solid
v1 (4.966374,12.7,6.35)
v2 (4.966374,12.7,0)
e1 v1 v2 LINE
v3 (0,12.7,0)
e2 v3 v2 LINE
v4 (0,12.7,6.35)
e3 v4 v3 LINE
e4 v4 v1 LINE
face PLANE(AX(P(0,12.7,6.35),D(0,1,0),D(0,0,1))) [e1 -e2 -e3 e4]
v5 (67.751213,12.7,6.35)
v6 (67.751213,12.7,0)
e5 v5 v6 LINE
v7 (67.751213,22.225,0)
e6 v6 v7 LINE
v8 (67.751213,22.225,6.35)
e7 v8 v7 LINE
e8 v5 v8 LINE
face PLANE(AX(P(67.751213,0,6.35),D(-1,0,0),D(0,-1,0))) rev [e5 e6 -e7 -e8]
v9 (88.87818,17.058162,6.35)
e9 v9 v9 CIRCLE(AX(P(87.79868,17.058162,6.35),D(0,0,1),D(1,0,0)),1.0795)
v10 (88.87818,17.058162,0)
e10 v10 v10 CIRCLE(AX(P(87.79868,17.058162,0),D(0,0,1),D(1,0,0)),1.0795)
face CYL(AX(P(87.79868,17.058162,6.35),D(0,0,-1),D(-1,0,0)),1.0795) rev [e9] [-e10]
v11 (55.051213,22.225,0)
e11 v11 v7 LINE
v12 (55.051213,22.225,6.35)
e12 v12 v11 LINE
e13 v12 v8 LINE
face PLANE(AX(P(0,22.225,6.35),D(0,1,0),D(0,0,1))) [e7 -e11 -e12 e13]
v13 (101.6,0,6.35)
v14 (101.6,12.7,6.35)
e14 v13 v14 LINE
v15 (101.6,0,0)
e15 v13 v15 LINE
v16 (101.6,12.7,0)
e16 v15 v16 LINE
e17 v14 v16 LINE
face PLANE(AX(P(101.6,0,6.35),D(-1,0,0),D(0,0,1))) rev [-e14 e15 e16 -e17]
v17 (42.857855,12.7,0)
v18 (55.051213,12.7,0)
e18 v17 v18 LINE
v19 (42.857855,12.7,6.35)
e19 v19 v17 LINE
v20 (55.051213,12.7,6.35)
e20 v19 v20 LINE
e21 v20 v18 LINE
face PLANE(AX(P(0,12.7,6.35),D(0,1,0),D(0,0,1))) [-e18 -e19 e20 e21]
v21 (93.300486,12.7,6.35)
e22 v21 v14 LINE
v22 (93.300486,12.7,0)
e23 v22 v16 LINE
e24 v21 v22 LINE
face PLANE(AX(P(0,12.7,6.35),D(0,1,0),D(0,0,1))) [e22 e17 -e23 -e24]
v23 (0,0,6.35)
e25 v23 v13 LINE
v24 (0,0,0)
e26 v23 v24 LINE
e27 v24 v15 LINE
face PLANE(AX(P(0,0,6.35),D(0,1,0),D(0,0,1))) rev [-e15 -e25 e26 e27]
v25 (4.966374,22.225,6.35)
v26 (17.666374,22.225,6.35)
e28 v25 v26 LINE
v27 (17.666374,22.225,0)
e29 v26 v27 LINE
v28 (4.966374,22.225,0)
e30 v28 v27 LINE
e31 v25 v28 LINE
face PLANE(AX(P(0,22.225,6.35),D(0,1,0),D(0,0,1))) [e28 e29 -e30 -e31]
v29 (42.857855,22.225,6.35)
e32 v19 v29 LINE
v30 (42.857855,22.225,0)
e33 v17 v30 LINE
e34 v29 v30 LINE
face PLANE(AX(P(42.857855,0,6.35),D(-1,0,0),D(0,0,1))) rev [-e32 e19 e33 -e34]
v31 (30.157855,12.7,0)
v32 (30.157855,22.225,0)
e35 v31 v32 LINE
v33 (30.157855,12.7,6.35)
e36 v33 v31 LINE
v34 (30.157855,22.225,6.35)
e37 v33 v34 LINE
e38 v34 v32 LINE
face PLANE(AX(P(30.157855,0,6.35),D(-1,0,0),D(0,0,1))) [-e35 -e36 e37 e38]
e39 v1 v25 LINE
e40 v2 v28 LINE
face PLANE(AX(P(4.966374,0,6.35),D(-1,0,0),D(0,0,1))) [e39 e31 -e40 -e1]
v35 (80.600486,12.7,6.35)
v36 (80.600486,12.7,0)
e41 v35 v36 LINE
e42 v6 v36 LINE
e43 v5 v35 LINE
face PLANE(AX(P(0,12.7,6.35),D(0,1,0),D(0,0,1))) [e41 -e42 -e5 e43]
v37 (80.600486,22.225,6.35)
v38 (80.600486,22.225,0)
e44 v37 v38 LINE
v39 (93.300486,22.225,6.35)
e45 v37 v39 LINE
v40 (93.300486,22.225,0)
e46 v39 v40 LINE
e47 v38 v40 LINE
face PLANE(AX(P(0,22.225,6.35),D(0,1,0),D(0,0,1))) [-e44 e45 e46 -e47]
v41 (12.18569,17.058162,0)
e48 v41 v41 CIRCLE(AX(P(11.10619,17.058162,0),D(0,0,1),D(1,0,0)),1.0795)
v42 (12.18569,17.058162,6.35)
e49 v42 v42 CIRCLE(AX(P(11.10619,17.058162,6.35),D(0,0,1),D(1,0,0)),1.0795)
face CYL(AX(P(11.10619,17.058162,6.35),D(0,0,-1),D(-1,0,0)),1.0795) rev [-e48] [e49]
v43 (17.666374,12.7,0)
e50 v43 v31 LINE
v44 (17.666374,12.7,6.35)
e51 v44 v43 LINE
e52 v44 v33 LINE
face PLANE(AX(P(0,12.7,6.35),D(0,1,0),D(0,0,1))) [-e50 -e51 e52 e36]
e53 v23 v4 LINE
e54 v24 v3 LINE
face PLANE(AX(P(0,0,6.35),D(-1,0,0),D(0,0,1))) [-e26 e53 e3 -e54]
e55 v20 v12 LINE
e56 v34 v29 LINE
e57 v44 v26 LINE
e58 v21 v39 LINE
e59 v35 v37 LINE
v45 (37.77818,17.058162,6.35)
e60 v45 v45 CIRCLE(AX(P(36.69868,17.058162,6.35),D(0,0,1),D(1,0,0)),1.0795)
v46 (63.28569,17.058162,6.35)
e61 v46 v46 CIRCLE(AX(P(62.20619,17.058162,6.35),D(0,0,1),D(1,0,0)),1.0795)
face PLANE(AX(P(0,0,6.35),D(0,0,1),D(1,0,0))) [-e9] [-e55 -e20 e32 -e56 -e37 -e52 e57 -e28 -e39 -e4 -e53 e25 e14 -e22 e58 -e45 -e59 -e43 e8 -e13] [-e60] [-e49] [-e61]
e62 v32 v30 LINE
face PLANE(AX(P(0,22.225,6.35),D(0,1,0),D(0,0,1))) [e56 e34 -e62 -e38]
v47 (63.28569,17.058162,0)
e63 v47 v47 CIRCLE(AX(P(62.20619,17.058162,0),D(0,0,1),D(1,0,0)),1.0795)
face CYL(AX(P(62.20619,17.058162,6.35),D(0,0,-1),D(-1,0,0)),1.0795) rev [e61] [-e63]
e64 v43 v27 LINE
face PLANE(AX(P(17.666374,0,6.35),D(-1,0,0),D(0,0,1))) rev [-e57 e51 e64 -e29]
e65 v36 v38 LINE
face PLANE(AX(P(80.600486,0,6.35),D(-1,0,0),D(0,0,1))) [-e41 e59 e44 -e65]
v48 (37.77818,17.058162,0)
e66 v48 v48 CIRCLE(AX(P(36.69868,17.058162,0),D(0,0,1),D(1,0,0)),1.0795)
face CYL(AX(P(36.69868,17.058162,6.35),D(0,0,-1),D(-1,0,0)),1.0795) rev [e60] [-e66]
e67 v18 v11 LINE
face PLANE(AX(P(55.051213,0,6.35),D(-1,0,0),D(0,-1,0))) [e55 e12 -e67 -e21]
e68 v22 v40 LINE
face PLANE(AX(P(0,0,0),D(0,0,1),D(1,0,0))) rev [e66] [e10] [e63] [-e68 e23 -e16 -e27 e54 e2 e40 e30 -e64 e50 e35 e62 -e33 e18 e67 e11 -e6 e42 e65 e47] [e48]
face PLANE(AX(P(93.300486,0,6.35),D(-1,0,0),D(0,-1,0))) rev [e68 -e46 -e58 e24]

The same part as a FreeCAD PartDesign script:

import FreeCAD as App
import Part
import Sketcher

V = App.Vector
Q = App.Units.Quantity


def add_polygon(sketch, points):
    """Adds a closed chain of lines whose ends are joined by coincident constraints."""
    first, n = sketch.GeometryCount, len(points)
    for a, b in zip(points, points[1:] + points[:1]):
        sketch.addGeometry(Part.LineSegment(App.Vector(*a, 0), App.Vector(*b, 0)), False)
    for i in range(n):
        sketch.addConstraint(Sketcher.Constraint("Coincident", first + i, 2, first + (i + 1) % n, 1))

doc = App.newDocument("Part")
body = doc.addObject("PartDesign::Body", "Body")

# Sketch on XY plane
sketch1 = body.newObject("Sketcher::SketchObject", "Sketch")
sketch1.AttachmentSupport = (doc.getObject("XY_Plane"), [""])
sketch1.MapMode = "FlatFace"
add_polygon(sketch1, [(5, 22.2), (5, 12.7), (0, 12.7), (0, 0), (101.6, 0), (101.6, 12.7), (93.3, 12.7), (93.3, 22.2), (80.6, 22.2), (80.6, 12.7), (67.8, 12.7), (67.8, 22.2), (55.1, 22.2), (55.1, 12.7), (42.9, 12.7), (42.9, 22.2), (30.2, 22.2), (30.2, 12.7), (17.7, 12.7), (17.7, 22.2)])  # lines 0-19
sketch1.addConstraint([
    Sketcher.Constraint("Vertical", 0),
    Sketcher.Constraint("Horizontal", 1),
    Sketcher.Constraint("Vertical", 2),
    Sketcher.Constraint("Horizontal", 3),
    Sketcher.Constraint("Vertical", 4),
    Sketcher.Constraint("Horizontal", 5),
    Sketcher.Constraint("Vertical", 6),
    Sketcher.Constraint("Horizontal", 7),
    Sketcher.Constraint("Vertical", 8),
    Sketcher.Constraint("Horizontal", 9),
    Sketcher.Constraint("Vertical", 10),
    Sketcher.Constraint("Horizontal", 11),
    Sketcher.Constraint("Vertical", 12),
    Sketcher.Constraint("Horizontal", 13),
    Sketcher.Constraint("Vertical", 14),
    Sketcher.Constraint("Horizontal", 15),
    Sketcher.Constraint("Vertical", 16),
    Sketcher.Constraint("Horizontal", 17),
    Sketcher.Constraint("Vertical", 18),
    Sketcher.Constraint("Horizontal", 19),
    Sketcher.Constraint("Coincident", 2, 2, -1, 1),
    Sketcher.Constraint("Horizontal", 1, 2, 4, 2),
    Sketcher.Constraint("Horizontal", 5, 2, 8, 2),
    Sketcher.Constraint("Horizontal", 7, 2, 10, 2),
    Sketcher.Constraint("Horizontal", 9, 2, 12, 2),
    Sketcher.Constraint("Horizontal", 11, 2, 14, 2),
    Sketcher.Constraint("Horizontal", 13, 2, 16, 2),
    Sketcher.Constraint("Horizontal", 15, 2, 18, 2),
    Sketcher.Constraint("Equal", 7, 11),
    Sketcher.Constraint("Equal", 11, 15),
    Sketcher.Constraint("Equal", 15, 19),
    Sketcher.Constraint("Equal", 19, 2),
    Sketcher.Constraint("DistanceX", 3, 1, 3, 2, Q("4 in")),
    Sketcher.Constraint("DistanceX", 7, 2, 7, 1, Q("0.5 in")),
    Sketcher.Constraint("DistanceY", 0, 2, 0, 1, Q("0.375 in")),
    Sketcher.Constraint("DistanceX", 17, 2, 17, 1, 12.491482),
    Sketcher.Constraint("DistanceX", 1, 2, 1, 1, 4.966374),
    Sketcher.Constraint("DistanceX", 5, 2, 5, 1, 8.299514),
    Sketcher.Constraint("DistanceX", 9, 2, 9, 1, 12.849273),
])
pad1 = body.newObject("PartDesign::Pad", "Pad")
pad1.Profile = sketch1
pad1.Length = Q("0.25 in")

# Sketch on XY plane
sketch2 = body.newObject("Sketcher::SketchObject", "Sketch001")
sketch2.AttachmentSupport = (doc.getObject("XY_Plane"), [""])
sketch2.MapMode = "FlatFace"
sketch2.addGeometry([
    Part.Circle(V(87.8, 17.1, 0), V(0, 0, 1), 1.1),  # 0
    Part.Circle(V(62.2, 17.1, 0), V(0, 0, 1), 1.1),  # 1
    Part.Circle(V(36.7, 17.1, 0), V(0, 0, 1), 1.1),  # 2
    Part.Circle(V(11.1, 17.1, 0), V(0, 0, 1), 1.1),  # 3
    Part.Circle(V(31.3, 115.4, 0), V(0, 0, 1), 1.1),  # 4
    Part.Circle(V(56.9, 115.4, 0), V(0, 0, 1), 1.1),  # 5
    Part.Circle(V(82.4, 115.4, 0), V(0, 0, 1), 1.1),  # 6
    Part.Circle(V(108, 115.4, 0), V(0, 0, 1), 1.1),  # 7
], False)
sketch2.addConstraint([
    Sketcher.Constraint("Equal", 0, 1),
    Sketcher.Constraint("Equal", 1, 2),
    Sketcher.Constraint("Equal", 2, 3),
    Sketcher.Constraint("Equal", 3, 4),
    Sketcher.Constraint("Equal", 4, 5),
    Sketcher.Constraint("Equal", 5, 6),
    Sketcher.Constraint("Equal", 6, 7),
    Sketcher.Constraint("Horizontal", 0, 3, 1, 3),
    Sketcher.Constraint("Horizontal", 1, 3, 2, 3),
    Sketcher.Constraint("Horizontal", 2, 3, 3, 3),
    Sketcher.Constraint("Horizontal", 4, 3, 5, 3),
    Sketcher.Constraint("Horizontal", 5, 3, 6, 3),
    Sketcher.Constraint("Horizontal", 6, 3, 7, 3),
    Sketcher.Constraint("Diameter", 0, Q("0.085 in")),
    Sketcher.Constraint("DistanceX", -1, 1, 7, 3, Q("4.2527001 in")),
    Sketcher.Constraint("DistanceX", 2, 3, 0, 3, 51.1),
    Sketcher.Constraint("DistanceX", 3, 3, 1, 3, 51.1),
    Sketcher.Constraint("DistanceX", 4, 3, 6, 3, 51.1),
    Sketcher.Constraint("DistanceX", 5, 3, 7, 3, 51.1),
    Sketcher.Constraint("DistanceX", -1, 1, 0, 3, 87.79868),
    Sketcher.Constraint("DistanceY", -1, 1, 0, 3, 17.058162),
    Sketcher.Constraint("DistanceX", -1, 1, 1, 3, 62.20619),
    Sketcher.Constraint("DistanceY", 2, 3, 4, 3, 98.332362),
    Sketcher.Constraint("DistanceX", 4, 3, 5, 3, 25.59249),
])
pocket1 = body.newObject("PartDesign::Pocket", "Pocket")
pocket1.Profile = sketch2
pocket1.Type = "ThroughAll"
pocket1.Reversed = True

doc.recompute()
